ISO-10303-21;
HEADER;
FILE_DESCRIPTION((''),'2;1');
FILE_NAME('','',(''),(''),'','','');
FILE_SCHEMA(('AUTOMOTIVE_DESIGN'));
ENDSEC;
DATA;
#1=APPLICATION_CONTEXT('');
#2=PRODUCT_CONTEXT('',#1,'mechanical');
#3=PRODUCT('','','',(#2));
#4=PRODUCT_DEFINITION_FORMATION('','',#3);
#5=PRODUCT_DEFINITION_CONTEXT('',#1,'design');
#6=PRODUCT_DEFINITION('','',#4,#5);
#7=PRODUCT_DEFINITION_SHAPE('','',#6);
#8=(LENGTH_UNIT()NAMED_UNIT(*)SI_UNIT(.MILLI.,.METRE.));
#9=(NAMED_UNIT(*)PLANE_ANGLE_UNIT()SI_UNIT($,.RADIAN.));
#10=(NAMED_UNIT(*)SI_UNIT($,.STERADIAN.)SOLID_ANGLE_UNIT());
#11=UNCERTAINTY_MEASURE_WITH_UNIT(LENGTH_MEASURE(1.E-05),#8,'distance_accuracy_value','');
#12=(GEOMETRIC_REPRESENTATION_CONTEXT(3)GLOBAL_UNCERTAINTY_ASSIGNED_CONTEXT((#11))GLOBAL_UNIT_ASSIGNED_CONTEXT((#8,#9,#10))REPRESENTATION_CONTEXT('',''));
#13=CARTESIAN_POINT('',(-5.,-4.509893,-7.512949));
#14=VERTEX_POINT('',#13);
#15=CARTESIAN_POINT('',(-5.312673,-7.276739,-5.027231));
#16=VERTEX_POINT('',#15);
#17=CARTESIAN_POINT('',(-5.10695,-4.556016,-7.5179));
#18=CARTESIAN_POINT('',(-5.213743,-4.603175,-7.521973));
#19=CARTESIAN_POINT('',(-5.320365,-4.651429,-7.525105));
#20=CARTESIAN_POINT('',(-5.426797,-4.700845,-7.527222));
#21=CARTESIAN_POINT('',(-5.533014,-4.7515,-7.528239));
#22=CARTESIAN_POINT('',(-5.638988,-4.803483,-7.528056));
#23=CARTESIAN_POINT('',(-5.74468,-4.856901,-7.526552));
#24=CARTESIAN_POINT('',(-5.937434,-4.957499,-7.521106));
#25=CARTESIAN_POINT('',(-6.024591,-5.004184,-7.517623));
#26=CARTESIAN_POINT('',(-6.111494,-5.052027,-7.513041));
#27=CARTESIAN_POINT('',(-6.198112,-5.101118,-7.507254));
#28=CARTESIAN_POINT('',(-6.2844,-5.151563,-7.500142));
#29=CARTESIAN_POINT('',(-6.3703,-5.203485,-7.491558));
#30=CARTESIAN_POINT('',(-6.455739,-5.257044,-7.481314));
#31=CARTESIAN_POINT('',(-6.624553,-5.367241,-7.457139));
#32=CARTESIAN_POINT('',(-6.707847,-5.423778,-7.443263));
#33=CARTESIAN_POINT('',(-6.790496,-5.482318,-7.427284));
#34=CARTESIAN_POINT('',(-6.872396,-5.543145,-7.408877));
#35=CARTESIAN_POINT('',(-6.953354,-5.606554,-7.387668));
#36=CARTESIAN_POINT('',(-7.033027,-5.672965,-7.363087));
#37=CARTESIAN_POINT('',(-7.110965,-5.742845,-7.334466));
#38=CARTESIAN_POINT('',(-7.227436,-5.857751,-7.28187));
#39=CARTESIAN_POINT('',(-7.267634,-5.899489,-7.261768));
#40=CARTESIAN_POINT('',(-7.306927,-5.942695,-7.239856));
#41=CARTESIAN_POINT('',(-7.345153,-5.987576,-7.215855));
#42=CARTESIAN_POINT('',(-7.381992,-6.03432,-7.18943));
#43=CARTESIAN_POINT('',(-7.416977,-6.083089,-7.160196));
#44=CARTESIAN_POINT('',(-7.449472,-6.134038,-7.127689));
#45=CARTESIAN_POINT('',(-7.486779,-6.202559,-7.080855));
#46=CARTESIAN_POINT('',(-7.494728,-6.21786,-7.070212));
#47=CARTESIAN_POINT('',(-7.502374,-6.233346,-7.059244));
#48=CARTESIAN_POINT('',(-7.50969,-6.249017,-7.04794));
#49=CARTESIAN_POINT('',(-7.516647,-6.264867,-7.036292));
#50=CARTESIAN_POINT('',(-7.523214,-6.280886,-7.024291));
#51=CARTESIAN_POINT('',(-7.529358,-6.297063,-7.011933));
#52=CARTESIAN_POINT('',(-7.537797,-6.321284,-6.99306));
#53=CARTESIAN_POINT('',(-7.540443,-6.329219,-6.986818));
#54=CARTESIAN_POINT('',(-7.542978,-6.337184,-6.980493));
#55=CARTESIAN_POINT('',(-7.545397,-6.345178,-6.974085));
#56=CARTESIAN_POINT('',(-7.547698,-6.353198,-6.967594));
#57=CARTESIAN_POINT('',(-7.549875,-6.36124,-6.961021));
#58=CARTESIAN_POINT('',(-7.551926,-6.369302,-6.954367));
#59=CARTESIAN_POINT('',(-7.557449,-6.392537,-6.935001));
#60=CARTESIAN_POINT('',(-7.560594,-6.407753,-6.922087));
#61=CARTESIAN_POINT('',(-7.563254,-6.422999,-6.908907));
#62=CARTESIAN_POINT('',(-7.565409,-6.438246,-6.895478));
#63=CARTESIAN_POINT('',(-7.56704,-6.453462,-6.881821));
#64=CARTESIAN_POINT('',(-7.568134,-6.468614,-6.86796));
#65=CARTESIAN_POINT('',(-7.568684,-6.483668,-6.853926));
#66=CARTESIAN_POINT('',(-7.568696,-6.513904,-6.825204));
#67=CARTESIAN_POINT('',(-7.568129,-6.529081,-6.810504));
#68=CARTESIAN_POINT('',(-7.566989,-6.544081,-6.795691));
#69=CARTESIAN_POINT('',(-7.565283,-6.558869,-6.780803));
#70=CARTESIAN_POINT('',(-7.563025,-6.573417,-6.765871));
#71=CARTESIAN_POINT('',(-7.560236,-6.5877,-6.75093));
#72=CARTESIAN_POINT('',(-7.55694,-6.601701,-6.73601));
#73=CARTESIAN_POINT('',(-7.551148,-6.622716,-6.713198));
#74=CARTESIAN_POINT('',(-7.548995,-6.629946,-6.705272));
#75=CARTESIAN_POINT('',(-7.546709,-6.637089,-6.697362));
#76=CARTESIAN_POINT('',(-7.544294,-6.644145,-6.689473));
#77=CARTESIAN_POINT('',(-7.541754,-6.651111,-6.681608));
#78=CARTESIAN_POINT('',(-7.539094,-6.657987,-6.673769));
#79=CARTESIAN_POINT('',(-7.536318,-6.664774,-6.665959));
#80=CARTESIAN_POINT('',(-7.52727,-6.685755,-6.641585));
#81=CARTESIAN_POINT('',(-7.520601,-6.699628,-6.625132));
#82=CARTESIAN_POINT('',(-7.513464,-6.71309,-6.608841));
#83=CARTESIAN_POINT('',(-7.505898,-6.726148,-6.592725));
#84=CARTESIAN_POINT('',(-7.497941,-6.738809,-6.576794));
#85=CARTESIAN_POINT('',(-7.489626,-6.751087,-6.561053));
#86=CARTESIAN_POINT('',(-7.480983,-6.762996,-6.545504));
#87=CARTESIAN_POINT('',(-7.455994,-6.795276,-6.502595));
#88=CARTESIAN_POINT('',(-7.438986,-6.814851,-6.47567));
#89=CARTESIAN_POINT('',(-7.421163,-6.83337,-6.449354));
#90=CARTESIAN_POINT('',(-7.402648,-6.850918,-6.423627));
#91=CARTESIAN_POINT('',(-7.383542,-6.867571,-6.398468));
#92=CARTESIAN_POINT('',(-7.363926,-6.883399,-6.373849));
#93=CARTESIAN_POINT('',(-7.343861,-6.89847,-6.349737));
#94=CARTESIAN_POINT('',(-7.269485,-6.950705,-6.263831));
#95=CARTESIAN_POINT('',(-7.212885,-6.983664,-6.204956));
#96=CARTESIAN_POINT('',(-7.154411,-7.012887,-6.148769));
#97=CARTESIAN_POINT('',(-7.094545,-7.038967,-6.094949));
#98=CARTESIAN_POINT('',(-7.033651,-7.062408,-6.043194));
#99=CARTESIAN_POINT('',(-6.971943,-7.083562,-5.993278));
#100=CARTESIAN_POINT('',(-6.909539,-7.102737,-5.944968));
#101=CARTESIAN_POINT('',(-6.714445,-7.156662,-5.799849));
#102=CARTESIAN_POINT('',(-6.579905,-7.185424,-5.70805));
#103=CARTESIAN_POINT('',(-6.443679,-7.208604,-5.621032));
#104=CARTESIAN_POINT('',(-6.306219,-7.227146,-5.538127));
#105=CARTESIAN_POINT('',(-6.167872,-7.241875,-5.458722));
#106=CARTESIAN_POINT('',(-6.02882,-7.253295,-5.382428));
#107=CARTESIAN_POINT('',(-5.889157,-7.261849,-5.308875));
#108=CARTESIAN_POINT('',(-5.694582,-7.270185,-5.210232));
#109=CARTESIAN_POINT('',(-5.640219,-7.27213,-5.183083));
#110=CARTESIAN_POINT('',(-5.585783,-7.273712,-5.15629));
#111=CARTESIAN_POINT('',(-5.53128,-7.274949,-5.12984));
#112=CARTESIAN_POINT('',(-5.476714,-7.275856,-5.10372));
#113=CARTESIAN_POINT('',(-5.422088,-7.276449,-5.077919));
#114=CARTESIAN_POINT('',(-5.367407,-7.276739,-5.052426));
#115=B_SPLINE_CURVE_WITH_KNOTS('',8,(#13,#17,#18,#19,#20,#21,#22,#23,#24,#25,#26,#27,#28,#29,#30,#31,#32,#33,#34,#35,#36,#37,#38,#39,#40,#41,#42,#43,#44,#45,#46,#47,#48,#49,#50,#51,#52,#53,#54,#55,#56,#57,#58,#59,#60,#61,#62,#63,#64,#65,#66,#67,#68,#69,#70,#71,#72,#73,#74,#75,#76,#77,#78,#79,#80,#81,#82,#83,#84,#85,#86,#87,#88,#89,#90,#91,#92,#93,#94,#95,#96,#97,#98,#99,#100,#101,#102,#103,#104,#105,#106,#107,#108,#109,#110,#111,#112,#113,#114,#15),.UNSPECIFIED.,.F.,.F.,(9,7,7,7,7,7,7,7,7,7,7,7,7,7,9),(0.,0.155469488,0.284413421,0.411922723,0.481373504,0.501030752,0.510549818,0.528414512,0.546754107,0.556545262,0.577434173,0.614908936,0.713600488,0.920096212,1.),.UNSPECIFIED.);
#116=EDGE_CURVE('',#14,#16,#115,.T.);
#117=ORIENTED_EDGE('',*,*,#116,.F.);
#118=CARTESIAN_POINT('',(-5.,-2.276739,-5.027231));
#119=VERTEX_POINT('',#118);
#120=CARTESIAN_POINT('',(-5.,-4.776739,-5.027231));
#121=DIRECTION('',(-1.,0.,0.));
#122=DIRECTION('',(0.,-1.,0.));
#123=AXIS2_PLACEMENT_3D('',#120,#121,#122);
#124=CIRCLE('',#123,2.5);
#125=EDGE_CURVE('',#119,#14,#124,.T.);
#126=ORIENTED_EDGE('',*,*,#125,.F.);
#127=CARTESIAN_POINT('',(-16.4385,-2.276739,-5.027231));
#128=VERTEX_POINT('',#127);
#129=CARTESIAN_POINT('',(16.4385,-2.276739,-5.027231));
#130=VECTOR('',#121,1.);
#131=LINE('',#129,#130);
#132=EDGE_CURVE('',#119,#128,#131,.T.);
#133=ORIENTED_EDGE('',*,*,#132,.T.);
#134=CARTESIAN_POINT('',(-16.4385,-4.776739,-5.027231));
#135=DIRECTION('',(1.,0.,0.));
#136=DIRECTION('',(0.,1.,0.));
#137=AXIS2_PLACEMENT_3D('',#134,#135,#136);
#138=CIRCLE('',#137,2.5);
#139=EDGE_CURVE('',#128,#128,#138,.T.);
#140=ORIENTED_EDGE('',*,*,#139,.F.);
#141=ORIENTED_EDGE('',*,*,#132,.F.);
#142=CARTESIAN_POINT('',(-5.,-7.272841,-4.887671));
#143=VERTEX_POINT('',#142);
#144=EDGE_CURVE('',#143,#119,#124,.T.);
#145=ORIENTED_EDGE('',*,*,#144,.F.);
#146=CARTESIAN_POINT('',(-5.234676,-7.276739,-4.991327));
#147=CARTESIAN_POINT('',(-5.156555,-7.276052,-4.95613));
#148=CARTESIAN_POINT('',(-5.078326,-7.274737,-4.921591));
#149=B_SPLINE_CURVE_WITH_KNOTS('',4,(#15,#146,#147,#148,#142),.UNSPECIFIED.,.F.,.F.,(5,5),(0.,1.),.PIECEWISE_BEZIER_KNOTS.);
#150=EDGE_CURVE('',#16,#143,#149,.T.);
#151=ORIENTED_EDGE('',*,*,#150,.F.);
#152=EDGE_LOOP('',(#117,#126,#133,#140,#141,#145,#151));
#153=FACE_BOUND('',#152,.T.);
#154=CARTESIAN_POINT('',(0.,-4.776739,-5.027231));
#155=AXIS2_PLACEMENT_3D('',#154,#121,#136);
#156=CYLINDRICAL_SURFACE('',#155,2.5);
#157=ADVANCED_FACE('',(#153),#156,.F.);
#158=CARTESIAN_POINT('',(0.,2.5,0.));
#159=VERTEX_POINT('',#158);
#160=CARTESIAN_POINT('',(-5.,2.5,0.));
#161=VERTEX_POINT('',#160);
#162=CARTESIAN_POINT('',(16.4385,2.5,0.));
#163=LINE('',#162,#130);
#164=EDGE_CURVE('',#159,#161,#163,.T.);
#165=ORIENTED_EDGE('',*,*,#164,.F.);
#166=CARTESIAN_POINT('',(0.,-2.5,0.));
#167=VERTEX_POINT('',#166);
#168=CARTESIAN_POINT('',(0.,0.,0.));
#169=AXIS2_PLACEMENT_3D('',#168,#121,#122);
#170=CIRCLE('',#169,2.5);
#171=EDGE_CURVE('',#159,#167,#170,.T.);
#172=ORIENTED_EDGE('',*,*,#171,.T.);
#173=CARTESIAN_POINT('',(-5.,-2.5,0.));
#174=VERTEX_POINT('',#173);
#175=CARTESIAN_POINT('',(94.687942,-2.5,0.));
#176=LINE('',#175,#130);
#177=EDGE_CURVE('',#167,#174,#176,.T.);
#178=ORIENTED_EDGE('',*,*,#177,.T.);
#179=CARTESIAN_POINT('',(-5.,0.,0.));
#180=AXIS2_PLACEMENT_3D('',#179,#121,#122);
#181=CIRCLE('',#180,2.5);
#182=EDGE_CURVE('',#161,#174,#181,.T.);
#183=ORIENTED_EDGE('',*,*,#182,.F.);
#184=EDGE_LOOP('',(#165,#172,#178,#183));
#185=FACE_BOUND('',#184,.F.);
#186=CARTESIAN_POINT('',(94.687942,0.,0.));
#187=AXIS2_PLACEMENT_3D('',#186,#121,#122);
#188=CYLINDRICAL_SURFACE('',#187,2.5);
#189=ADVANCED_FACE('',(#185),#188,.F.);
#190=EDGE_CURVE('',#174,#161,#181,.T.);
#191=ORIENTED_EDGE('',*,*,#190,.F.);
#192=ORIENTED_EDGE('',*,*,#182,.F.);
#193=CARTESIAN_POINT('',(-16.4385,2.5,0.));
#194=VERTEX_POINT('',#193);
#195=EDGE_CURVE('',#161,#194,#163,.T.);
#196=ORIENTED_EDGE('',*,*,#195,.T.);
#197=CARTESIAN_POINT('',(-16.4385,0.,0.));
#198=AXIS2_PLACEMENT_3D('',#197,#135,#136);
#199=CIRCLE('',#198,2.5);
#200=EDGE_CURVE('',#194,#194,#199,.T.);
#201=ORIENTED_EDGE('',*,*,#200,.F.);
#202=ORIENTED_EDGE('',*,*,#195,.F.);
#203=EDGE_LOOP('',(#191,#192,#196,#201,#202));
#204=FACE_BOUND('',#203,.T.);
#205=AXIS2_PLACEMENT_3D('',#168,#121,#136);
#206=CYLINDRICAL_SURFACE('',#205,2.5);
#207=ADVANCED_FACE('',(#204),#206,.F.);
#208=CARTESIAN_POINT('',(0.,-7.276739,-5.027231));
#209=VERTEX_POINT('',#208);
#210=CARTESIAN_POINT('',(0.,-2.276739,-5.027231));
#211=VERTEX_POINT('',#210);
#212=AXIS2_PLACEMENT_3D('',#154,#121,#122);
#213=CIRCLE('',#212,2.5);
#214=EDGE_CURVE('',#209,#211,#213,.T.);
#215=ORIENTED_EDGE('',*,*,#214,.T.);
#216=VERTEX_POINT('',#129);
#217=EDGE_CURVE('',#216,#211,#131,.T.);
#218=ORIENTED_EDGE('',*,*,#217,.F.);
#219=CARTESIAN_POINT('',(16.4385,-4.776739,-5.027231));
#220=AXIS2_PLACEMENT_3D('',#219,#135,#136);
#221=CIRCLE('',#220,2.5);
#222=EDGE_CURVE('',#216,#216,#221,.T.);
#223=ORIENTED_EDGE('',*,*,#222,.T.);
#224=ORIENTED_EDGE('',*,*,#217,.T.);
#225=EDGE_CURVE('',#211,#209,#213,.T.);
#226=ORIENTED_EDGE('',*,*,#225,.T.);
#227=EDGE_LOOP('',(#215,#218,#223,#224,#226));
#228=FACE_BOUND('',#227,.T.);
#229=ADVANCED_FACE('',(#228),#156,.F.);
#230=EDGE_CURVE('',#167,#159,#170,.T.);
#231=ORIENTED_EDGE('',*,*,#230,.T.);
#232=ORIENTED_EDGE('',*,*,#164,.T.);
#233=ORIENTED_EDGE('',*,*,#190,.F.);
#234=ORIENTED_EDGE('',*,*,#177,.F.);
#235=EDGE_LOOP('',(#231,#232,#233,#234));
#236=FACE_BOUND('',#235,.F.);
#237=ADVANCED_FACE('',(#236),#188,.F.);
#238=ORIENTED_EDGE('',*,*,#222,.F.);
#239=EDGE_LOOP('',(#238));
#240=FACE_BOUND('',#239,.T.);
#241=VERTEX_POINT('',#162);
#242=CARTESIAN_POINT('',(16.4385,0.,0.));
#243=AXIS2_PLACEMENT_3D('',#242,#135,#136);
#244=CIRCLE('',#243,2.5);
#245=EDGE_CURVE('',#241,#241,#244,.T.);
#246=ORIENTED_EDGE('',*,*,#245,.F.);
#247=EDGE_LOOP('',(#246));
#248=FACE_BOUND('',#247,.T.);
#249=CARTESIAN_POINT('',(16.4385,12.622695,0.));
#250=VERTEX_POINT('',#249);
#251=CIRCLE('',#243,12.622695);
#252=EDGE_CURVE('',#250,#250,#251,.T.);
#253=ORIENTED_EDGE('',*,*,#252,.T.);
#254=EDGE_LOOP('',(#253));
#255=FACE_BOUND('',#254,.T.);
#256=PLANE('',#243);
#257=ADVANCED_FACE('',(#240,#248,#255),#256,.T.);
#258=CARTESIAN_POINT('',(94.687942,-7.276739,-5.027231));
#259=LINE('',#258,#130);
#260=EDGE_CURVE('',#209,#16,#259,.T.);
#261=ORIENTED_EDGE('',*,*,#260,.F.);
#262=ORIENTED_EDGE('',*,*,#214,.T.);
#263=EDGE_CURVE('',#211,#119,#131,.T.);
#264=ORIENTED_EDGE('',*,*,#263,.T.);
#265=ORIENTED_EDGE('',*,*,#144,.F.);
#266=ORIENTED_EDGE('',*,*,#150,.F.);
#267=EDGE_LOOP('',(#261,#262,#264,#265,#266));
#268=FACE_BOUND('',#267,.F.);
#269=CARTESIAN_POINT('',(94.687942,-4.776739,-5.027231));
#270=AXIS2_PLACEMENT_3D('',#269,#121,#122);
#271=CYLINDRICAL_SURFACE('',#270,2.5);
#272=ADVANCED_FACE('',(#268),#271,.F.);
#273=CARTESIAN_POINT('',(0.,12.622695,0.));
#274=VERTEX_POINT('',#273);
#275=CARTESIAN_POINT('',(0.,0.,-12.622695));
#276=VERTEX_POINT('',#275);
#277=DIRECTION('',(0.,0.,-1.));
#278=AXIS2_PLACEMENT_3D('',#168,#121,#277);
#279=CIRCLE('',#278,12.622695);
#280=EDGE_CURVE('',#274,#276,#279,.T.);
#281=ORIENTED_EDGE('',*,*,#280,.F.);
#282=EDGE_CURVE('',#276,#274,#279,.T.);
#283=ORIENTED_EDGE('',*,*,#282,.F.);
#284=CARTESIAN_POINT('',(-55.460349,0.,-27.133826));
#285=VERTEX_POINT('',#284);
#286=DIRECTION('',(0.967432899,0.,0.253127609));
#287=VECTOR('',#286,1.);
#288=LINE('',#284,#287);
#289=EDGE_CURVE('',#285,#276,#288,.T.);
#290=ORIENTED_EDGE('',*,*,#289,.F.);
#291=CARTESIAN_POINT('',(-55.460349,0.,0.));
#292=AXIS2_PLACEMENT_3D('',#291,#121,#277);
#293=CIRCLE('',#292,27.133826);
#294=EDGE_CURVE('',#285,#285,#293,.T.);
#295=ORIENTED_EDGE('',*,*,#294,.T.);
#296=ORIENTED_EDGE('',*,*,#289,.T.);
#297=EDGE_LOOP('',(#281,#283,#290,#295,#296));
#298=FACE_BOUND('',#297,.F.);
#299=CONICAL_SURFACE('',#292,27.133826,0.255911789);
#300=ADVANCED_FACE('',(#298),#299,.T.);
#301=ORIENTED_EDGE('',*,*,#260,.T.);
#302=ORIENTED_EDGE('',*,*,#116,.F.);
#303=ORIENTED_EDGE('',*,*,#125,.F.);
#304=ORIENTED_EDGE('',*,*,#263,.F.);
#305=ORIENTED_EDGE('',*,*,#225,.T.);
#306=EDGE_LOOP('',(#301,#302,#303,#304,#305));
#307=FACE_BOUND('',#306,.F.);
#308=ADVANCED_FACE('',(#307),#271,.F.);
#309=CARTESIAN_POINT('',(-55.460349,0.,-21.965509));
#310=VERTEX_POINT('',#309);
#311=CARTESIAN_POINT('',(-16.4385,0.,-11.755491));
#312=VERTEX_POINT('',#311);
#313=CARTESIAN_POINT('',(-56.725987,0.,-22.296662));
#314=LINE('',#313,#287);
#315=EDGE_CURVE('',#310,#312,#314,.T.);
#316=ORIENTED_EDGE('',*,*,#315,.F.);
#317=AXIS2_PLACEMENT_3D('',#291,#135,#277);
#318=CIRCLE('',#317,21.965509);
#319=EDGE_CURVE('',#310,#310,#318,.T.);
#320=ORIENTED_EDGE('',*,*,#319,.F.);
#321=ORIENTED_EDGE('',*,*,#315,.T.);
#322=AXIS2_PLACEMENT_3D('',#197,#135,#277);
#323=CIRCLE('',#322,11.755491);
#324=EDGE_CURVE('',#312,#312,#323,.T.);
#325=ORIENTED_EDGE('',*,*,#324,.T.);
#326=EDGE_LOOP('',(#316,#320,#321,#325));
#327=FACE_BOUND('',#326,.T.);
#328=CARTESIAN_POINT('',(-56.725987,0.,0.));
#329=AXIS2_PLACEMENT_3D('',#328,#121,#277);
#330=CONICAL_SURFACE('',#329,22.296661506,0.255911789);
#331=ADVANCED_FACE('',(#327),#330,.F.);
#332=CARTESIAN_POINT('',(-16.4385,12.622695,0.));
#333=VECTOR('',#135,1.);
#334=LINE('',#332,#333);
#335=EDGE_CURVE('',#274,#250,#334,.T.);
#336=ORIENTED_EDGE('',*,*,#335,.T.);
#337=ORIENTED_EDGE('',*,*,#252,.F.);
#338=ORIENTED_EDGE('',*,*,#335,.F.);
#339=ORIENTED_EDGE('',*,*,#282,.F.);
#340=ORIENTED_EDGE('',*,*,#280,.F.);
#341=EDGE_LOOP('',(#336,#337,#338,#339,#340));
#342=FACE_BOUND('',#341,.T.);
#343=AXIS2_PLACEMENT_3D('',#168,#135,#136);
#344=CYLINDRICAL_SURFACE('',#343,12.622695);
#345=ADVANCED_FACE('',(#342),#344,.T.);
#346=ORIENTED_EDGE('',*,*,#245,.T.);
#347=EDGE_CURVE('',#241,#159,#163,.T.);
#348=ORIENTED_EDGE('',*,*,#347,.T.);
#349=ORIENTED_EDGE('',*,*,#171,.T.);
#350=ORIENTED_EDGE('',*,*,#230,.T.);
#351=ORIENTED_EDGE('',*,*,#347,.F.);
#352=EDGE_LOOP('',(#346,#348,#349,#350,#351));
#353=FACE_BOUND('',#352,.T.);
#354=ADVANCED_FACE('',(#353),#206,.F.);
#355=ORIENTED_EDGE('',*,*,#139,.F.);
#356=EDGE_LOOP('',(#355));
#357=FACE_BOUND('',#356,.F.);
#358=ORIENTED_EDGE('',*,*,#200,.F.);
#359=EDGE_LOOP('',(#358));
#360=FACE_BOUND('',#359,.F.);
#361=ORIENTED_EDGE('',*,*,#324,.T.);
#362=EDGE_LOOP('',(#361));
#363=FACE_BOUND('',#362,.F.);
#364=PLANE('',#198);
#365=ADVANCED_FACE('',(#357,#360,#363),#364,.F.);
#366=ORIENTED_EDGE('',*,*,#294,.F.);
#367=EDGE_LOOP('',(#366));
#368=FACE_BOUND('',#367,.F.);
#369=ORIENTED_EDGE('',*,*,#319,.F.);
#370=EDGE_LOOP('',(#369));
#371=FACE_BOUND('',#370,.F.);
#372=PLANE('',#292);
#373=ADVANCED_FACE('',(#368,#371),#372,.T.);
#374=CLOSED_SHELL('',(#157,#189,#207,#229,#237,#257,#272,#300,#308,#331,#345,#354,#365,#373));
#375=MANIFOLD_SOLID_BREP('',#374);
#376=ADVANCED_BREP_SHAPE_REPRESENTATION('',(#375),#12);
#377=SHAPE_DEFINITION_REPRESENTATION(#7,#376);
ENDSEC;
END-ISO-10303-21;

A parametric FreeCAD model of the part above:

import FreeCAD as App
import Part
import Sketcher
from FreeCAD import Vector


def faces_at(feature, points):
    """Names of the faces that lie closest to the given points."""
    faces = feature.Shape.Faces
    near = lambda p: min(range(len(faces)), key=lambda i: faces[i].distToShape(Part.Vertex(*p))[0])
    return sorted({f"Face{near(p) + 1}" for p in points})

doc = App.newDocument("Part")
body = doc.addObject("PartDesign::Body", "Body")

sketch1 = body.newObject("Sketcher::SketchObject", "Sketch")
sketch1.AttachmentSupport = (doc.getObject("XZ_Plane"), [""])
sketch1.MapMode = "FlatFace"
sketch1.addGeometry(Part.LineSegment(Vector(-55.460349, -27.133826, 0), Vector(0, -12.622695, 0)), False)
sketch1.addGeometry(Part.LineSegment(Vector(0, -12.622695, 0), Vector(0, 0, 0)), False)
sketch1.addGeometry(Part.LineSegment(Vector(0, 0, 0), Vector(-55.460349, 0, 0)), False)
sketch1.addGeometry(Part.LineSegment(Vector(-55.460349, 0, 0), Vector(-55.460349, -27.133826, 0)), False)
sketch1.addConstraint(Sketcher.Constraint("Coincident", 0, 2, 1, 1))
sketch1.addConstraint(Sketcher.Constraint("Coincident", 1, 2, 2, 1))
sketch1.addConstraint(Sketcher.Constraint("Coincident", 2, 2, 3, 1))
sketch1.addConstraint(Sketcher.Constraint("Coincident", 3, 2, 0, 1))
sketch1.addConstraint(Sketcher.Constraint("Vertical", 1))
sketch1.addConstraint(Sketcher.Constraint("Horizontal", 2))
sketch1.addConstraint(Sketcher.Constraint("Vertical", 3))
sketch1.addConstraint(Sketcher.Constraint("Coincident", 1, 2, -1, 1))
sketch1.addConstraint(Sketcher.Constraint("DistanceX", 2, 2, 2, 1, 55.460349))
sketch1.addConstraint(Sketcher.Constraint("DistanceY", 1, 1, 1, 2, 12.622695))
sketch1.addConstraint(Sketcher.Constraint("DistanceY", 3, 2, 3, 1, 27.133826))
revolution = body.newObject("PartDesign::Revolution", "Revolution")
revolution.Profile = sketch1
revolution.ReferenceAxis = (sketch1, ["H_Axis"])
revolution.Angle = 360
doc.recompute()

thickness = body.newObject("PartDesign::Thickness", "Thickness")
thickness.Base = (revolution, faces_at(revolution, [(-55.46, 0, 0)]))
thickness.Value = 5
thickness.Reversed = True
thickness.Join = "Arc"

sketch2 = body.newObject("Sketcher::SketchObject", "Sketch001")
sketch2.AttachmentSupport = (doc.getObject("YZ_Plane"), [""])
sketch2.MapMode = "FlatFace"
sketch2.addGeometry(Part.Circle(Vector(0, 0, 0), Vector(0, 0, 1), 2.5), False)
sketch2.addGeometry(Part.Circle(Vector(-4.776739, -5.027231, 0), Vector(0, 0, 1), 2.5), False)
sketch2.addConstraint(Sketcher.Constraint("Coincident", 0, 3, -1, 1))
sketch2.addConstraint(Sketcher.Constraint("Equal", 0, 1))
sketch2.addConstraint(Sketcher.Constraint("Diameter", 0, 5.0))
sketch2.addConstraint(Sketcher.Constraint("DistanceX", 1, 3, -1, 1, 4.776739))
sketch2.addConstraint(Sketcher.Constraint("DistanceY", 1, 3, -1, 1, 5.027231))
doc.recompute()
hole = body.newObject("PartDesign::Hole", "Hole")
hole.Profile = sketch2
hole.ThreadType = "None"
hole.Diameter = 5
hole.DepthType = "ThroughAll"

sketch3 = body.newObject("Sketcher::SketchObject", "Sketch002")
sketch3.AttachmentSupport = (doc.getObject("YZ_Plane"), [""])
sketch3.MapMode = "FlatFace"
sketch3.addGeometry(Part.Circle(Vector(0, 0, 0), Vector(0, 0, 1), 12.622695), False)
sketch3.addGeometry(Part.Circle(Vector(-4.776739, -5.027231, 0), Vector(0, 0, 1), 2.5), False)
sketch3.addGeometry(Part.Circle(Vector(0, 0, 0), Vector(0, 0, 1), 2.5), False)
sketch3.addConstraint(Sketcher.Constraint("Coincident", 0, 3, -1, 1))
sketch3.addConstraint(Sketcher.Constraint("Coincident", 2, 3, -1, 1))
sketch3.addConstraint(Sketcher.Constraint("Equal", 1, 2))
sketch3.addConstraint(Sketcher.Constraint("Diameter", 1, 5.0))
sketch3.addConstraint(Sketcher.Constraint("Diameter", 0, 25.24539))
sketch3.addConstraint(Sketcher.Constraint("DistanceX", 1, 3, -1, 1, 4.776739))
sketch3.addConstraint(Sketcher.Constraint("DistanceY", 1, 3, -1, 1, 5.027231))
pad1 = body.newObject("PartDesign::Pad", "Pad")
pad1.Profile = sketch3
pad1.Length = 32.877
pad1.Midplane = True

doc.recompute()
